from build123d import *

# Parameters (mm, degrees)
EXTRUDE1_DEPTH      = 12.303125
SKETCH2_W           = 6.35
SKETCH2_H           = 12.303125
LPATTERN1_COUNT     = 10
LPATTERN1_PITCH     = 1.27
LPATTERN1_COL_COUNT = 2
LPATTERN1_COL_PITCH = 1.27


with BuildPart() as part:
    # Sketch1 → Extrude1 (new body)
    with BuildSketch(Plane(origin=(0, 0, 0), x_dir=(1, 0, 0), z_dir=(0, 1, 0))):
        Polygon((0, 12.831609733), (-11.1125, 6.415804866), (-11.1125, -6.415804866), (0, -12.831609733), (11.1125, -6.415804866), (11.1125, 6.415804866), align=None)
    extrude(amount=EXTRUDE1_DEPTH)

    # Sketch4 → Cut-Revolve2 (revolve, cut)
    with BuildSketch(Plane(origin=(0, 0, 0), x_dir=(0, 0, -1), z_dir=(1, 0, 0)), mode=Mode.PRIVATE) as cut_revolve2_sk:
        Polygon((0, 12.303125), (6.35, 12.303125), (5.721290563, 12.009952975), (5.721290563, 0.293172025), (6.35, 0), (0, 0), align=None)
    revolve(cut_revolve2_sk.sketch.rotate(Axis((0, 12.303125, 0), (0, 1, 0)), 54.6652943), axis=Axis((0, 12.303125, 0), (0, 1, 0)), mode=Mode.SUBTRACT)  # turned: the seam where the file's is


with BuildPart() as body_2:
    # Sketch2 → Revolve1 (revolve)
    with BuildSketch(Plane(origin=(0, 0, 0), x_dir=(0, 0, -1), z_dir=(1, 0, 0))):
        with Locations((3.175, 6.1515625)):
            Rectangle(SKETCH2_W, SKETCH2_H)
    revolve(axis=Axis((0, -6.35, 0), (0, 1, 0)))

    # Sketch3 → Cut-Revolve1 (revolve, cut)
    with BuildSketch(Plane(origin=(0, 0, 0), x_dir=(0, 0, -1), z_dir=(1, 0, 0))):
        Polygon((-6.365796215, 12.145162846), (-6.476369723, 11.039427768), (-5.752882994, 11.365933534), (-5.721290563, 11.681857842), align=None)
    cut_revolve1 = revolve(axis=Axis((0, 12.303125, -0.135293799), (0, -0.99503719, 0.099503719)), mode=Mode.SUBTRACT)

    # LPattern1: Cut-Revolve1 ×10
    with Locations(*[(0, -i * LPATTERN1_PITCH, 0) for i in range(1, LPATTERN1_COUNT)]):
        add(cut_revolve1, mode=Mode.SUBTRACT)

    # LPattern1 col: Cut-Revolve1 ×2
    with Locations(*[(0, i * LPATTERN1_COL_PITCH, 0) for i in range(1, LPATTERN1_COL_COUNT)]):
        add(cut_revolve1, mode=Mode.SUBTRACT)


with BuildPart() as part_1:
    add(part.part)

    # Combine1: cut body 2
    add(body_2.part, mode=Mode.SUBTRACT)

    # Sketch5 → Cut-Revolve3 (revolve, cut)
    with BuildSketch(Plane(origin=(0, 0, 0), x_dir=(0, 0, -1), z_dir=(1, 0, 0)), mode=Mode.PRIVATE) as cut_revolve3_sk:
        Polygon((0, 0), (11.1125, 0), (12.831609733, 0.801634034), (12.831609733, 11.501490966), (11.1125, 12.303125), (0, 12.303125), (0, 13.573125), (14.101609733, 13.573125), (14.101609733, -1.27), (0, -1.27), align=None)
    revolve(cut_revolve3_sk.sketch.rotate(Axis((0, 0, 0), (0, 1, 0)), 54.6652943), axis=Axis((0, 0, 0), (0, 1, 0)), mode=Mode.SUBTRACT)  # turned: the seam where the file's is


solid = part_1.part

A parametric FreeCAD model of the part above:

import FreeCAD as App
import Part
import Sketcher
from FreeCAD import Vector
Q = App.Units.Quantity


def add_polygon(sketch, points):
    """Adds a closed chain of lines whose ends are joined by coincident constraints."""
    first, n = sketch.GeometryCount, len(points)
    for a, b in zip(points, points[1:] + points[:1]):
        sketch.addGeometry(Part.LineSegment(App.Vector(*a, 0), App.Vector(*b, 0)), False)
    for i in range(n):
        sketch.addConstraint(Sketcher.Constraint("Coincident", first + i, 2, first + (i + 1) % n, 1))

doc = App.newDocument("Part")
body = doc.addObject("PartDesign::Body", "Body")

# Sketch on XZ plane
sketch1 = body.newObject("Sketcher::SketchObject", "Sketch")
sketch1.AttachmentSupport = (doc.getObject("XZ_Plane"), [""])
sketch1.MapMode = "FlatFace"
add_polygon(sketch1, [(0, -13), (-11, -6), (-11, 6), (0, 13), (11, 6), (11, -6)])  # lines 0-5
sketch1.addConstraint([
    Sketcher.Constraint("Vertical", 1),
    Sketcher.Constraint("Vertical", 4),
    Sketcher.Constraint("Symmetric", 0, 2, 3, 2, -1, 1),
    Sketcher.Constraint("Symmetric", 2, 2, 5, 2, -1, 1),
    Sketcher.Constraint("PointOnObject", 2, 2, -2),
    Sketcher.Constraint("Parallel", 2, 5),
    Sketcher.Constraint("Horizontal", 1, 2, 3, 2),
    Sketcher.Constraint("Angle", 0, Q("150 deg")),
    Sketcher.Constraint("DistanceX", 0, 2, -1, 1, Q("0.4375 in")),
    Sketcher.Constraint("DistanceY", 1, 1, 1, 2, 12.83161),
])
pad1 = body.newObject("PartDesign::Pad", "Pad")
pad1.Profile = sketch1
pad1.Length = Q("0.484375 in")
pad1.Reversed = True

# Sketch on YZ plane
sketch2 = body.newObject("Sketcher::SketchObject", "Sketch001")
sketch2.AttachmentSupport = (doc.getObject("YZ_Plane"), [""])
sketch2.MapMode = "FlatFace"
add_polygon(sketch2, [(12.3, -6.3), (12.3, 0), (0, 0), (0, -6.3), (0.3, -5.7), (12, -5.7)])  # lines 0-5
sketch2.addConstraint([
    Sketcher.Constraint("Vertical", 0),
    Sketcher.Constraint("Horizontal", 1),
    Sketcher.Constraint("Vertical", 2),
    Sketcher.Constraint("Horizontal", 4),
    Sketcher.Constraint("Coincident", 1, 2, -1, 1),
    Sketcher.Constraint("Horizontal", 2, 2, 5, 2),
    Sketcher.Constraint("Equal", 3, 5),
    Sketcher.Constraint("Angle", 3, Q("65 deg")),
    Sketcher.Constraint("DistanceY", 0, 1, 0, 2, Q("0.25 in")),
    Sketcher.Constraint("DistanceX", 1, 2, 1, 1, Q("0.484375 in")),
    Sketcher.Constraint("DistanceX", 4, 1, 4, 2, 11.716781),
])
groove = body.newObject("PartDesign::Groove", "Groove")
groove.Profile = sketch2
groove.ReferenceAxis = (sketch2, ["H_Axis"])
groove.Angle = 360
body2 = doc.addObject("PartDesign::Body", "Body001")

# Sketch on YZ plane
sketch3 = body2.newObject("Sketcher::SketchObject", "Sketch002")
sketch3.AttachmentSupport = (doc.getObject("YZ_Plane001"), [""])
sketch3.MapMode = "FlatFace"
add_polygon(sketch3, [(12, 0), (0, 0), (0, -6), (12, -6)])  # lines 0-3
sketch3.addConstraint([
    Sketcher.Constraint("Horizontal", 0),
    Sketcher.Constraint("Vertical", 1),
    Sketcher.Constraint("Horizontal", 2),
    Sketcher.Constraint("Vertical", 3),
    Sketcher.Constraint("Coincident", 0, 2, -1, 1),
    Sketcher.Constraint("DistanceY", 1, 2, 1, 1, Q("0.25 in")),
    Sketcher.Constraint("DistanceX", 0, 2, 0, 1, Q("0.484375 in")),
])
revolution = body2.newObject("PartDesign::Revolution", "Revolution")
revolution.Profile = sketch3
revolution.ReferenceAxis = (sketch3, ["H_Axis"])
revolution.Angle = 360

# Sketch on YZ plane
sketch4 = body2.newObject("Sketcher::SketchObject", "Sketch003")
sketch4.AttachmentSupport = (doc.getObject("YZ_Plane001"), [""])
sketch4.MapMode = "FlatFace"
add_polygon(sketch4, [(12.15, 6.37), (11.04, 6.48), (11.37, 5.75), (11.68, 5.72)])  # lines 0-3
sketch4.addGeometry(Part.LineSegment(Vector(11.5, -0.06, 0), Vector(10.4, 0.06, 0)), True)  # axis
sketch4.addConstraint([
    Sketcher.Constraint("Parallel", 0, 2),
    Sketcher.Constraint("Parallel", 2, 4),
    Sketcher.Constraint("Equal", 1, 3),
    Sketcher.Constraint("Equal", 0, 4),
    Sketcher.Constraint("Distance", 1, Q("0.03125 in")),
    Sketcher.Constraint("Distance", 2, Q("0.0125 in")),
    Sketcher.Constraint("Distance", 0, 1.11125),
    Sketcher.Constraint("DistanceY", -1, 1, 0, 2, 6.47637),
    Sketcher.Constraint("DistanceY", -1, 1, 2, 2, 5.721291),
    Sketcher.Constraint("DistanceX", -1, 1, 4, 2, 10.397319),
    Sketcher.Constraint("DistanceX", 1, 2, 4, 1, 0.137121),
    Sketcher.Constraint("DistanceY", 4, 1, 1, 2, 5.80817),
])
groove2 = body2.newObject("PartDesign::Groove", "Groove001")
groove2.Profile = sketch4
groove2.ReferenceAxis = (sketch4, ["Axis0"])
groove2.Angle = 360
doc.recompute()

linearpattern = body2.newObject("PartDesign::LinearPattern", "LinearPattern")
linearpattern.Originals = [groove2]
linearpattern.Direction = (doc.getObject("Y_Axis001"), [""])
linearpattern.Mode = "offset"
linearpattern.Offset = Q("0.05 in")
linearpattern.Occurrences = 10
linearpattern.Reversed = True
body2.Tip = linearpattern
doc.recompute()

linearpattern2 = body2.newObject("PartDesign::LinearPattern", "LinearPattern001")
linearpattern2.Originals = [groove2]
linearpattern2.Direction = (doc.getObject("Y_Axis001"), [""])
linearpattern2.Mode = "offset"
linearpattern2.Offset = Q("0.05 in")
linearpattern2.Occurrences = 2
body2.Tip = linearpattern2
doc.recompute()

boolean = body.newObject("PartDesign::Boolean", "Boolean")
boolean.Type = "Cut"
boolean.addObjects([body2])

# Sketch on YZ plane
sketch5 = body.newObject("Sketcher::SketchObject", "Sketch004")
sketch5.AttachmentSupport = (doc.getObject("YZ_Plane"), [""])
sketch5.MapMode = "FlatFace"
add_polygon(sketch5, [(0, -11.1), (0, 0), (-1.3, 0), (-1.3, -14.1), (13.6, -14.1), (13.6, 0), (12.3, 0), (12.3, -11.1), (11.5, -12.8), (0.8, -12.8)])  # lines 0-9
sketch5.addConstraint([
    Sketcher.Constraint("Vertical", 0),
    Sketcher.Constraint("Horizontal", 1),
    Sketcher.Constraint("Vertical", 2),
    Sketcher.Constraint("Horizontal", 3),
    Sketcher.Constraint("Vertical", 4),
    Sketcher.Constraint("Horizontal", 5),
    Sketcher.Constraint("Vertical", 6),
    Sketcher.Constraint("Horizontal", 8),
    Sketcher.Constraint("Coincident", 0, 2, -1, 1),
    Sketcher.Constraint("PointOnObject", 4, 2, -1),
    Sketcher.Constraint("Horizontal", 6, 2, 9, 2),
    Sketcher.Constraint("Equal", 1, 5),
    Sketcher.Constraint("Equal", 7, 9),
    Sketcher.Constraint("Angle", 7, Q("-115 deg")),
    Sketcher.Constraint("DistanceX", 1, 2, 1, 1, Q("0.05 in")),
    Sketcher.Constraint("DistanceY", 0, 1, 0, 2, Q("0.4375 in")),
    Sketcher.Constraint("DistanceY", 3, 2, 7, 2, Q("0.05 in")),
    Sketcher.Constraint("DistanceX", -1, 1, 5, 2, Q("0.484375 in")),
    Sketcher.Constraint("DistanceY", 2, 2, 2, 1, 14.10161),
])
groove3 = body.newObject("PartDesign::Groove", "Groove002")
groove3.Profile = sketch5
groove3.ReferenceAxis = (sketch5, ["H_Axis"])
groove3.Angle = 360

doc.recompute()
